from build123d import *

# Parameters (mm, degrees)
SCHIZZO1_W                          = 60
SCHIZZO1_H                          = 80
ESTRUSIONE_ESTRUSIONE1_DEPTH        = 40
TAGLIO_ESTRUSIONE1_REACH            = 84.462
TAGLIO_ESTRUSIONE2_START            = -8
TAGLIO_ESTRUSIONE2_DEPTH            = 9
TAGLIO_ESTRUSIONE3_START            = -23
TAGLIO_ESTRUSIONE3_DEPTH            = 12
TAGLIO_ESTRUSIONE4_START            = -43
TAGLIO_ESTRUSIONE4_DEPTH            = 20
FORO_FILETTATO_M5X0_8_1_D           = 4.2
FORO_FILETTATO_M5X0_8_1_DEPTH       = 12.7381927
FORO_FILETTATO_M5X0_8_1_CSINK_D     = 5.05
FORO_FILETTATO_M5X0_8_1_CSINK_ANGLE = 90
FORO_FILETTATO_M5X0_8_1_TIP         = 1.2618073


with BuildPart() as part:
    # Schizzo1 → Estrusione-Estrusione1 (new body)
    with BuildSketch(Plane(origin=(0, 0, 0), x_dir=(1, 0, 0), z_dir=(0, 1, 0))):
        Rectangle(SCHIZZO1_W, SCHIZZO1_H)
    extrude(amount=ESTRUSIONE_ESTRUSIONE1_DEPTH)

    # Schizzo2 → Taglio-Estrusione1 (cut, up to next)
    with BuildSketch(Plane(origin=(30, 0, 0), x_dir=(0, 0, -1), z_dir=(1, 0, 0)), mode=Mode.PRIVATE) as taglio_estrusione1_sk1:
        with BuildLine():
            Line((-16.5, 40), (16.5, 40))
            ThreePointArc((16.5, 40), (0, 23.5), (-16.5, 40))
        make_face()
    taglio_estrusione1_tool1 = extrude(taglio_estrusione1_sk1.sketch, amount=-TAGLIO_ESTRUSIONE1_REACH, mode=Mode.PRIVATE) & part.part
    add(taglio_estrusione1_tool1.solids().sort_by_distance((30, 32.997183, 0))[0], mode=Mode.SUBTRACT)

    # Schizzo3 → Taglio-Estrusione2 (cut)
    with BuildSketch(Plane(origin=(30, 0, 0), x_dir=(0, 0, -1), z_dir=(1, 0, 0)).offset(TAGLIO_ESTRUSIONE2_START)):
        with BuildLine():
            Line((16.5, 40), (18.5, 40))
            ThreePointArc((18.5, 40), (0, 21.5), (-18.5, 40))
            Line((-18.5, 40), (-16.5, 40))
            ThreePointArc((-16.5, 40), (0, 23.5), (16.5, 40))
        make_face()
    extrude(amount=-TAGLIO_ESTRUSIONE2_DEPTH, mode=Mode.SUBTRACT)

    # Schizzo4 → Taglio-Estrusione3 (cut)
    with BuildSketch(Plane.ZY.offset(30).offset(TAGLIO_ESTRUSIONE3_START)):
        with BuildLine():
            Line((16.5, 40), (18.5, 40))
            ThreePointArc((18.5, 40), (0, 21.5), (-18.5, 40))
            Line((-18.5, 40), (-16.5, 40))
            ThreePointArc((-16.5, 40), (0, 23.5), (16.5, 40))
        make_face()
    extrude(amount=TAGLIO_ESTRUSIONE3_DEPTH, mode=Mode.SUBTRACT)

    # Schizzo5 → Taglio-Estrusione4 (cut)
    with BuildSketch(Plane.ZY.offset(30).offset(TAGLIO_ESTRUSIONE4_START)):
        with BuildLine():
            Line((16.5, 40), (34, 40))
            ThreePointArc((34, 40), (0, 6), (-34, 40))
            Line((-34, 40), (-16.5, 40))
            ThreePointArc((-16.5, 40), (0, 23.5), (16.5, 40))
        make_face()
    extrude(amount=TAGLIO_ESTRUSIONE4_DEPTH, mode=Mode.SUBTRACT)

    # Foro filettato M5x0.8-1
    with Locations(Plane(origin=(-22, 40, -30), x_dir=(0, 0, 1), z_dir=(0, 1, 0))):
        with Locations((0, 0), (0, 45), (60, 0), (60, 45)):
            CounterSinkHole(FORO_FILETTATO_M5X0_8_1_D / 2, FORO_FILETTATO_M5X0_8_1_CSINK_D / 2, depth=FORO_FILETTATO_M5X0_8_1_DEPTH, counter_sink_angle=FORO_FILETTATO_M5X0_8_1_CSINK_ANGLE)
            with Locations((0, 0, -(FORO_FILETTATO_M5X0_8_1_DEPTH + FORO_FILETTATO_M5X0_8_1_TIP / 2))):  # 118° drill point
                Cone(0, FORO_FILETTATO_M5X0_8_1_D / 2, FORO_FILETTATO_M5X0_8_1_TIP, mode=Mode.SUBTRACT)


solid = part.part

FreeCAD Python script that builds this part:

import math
import FreeCAD as App
import Part
import Sketcher

doc = App.newDocument("Part")
body = doc.addObject("PartDesign::Body", "Body")

# Sketch on XZ plane
sketch1 = body.newObject("Sketcher::SketchObject", "Sketch")
sketch1.AttachmentSupport = (doc.getObject("XZ_Plane"), [""])
sketch1.MapMode = "FlatFace"
sketch1.addGeometry(Part.LineSegment(App.Vector(-30, -40, 0), App.Vector(-30, 40, 0)), False)
sketch1.addGeometry(Part.LineSegment(App.Vector(-30, 40, 0), App.Vector(30, 40, 0)), False)
sketch1.addGeometry(Part.LineSegment(App.Vector(30, 40, 0), App.Vector(30, -40, 0)), False)
sketch1.addGeometry(Part.LineSegment(App.Vector(30, -40, 0), App.Vector(-30, -40, 0)), False)
sketch1.addConstraint(Sketcher.Constraint("Coincident", 0, 2, 1, 1))
sketch1.addConstraint(Sketcher.Constraint("Coincident", 1, 2, 2, 1))
sketch1.addConstraint(Sketcher.Constraint("Coincident", 2, 2, 3, 1))
sketch1.addConstraint(Sketcher.Constraint("Coincident", 3, 2, 0, 1))
sketch1.addConstraint(Sketcher.Constraint("Vertical", 0))
sketch1.addConstraint(Sketcher.Constraint("Horizontal", 1))
sketch1.addConstraint(Sketcher.Constraint("Vertical", 2))
sketch1.addConstraint(Sketcher.Constraint("Horizontal", 3))
sketch1.addConstraint(Sketcher.Constraint("Symmetric", 0, 2, 2, 2, -1, 1))
sketch1.addConstraint(Sketcher.Constraint("DistanceX", 1, 1, 1, 2, 60.0))
sketch1.addConstraint(Sketcher.Constraint("DistanceY", 0, 1, 0, 2, 80.0))
pad1 = body.newObject("PartDesign::Pad", "Pad")
pad1.Profile = sketch1
pad1.Length = 40
pad1.Reversed = True

# Sketch on YZ plane
sketch2 = body.newObject("Sketcher::SketchObject", "Sketch001")
sketch2.AttachmentSupport = (doc.getObject("YZ_Plane"), [""])
sketch2.MapMode = "FlatFace"
sketch2.AttachmentOffset = App.Placement(App.Vector(0, 0, 30), App.Rotation())
sketch2.addGeometry(Part.LineSegment(App.Vector(40, -16, 0), App.Vector(40, 16, 0)), False)
sketch2.addGeometry(Part.ArcOfCircle(Part.Circle(App.Vector(40, 0, 0), App.Vector(0, 0, 1), 16), math.radians(90), math.radians(270)), False)
sketch2.addConstraint(Sketcher.Constraint("Coincident", 0, 1, 1, 2))
sketch2.addConstraint(Sketcher.Constraint("Coincident", 1, 1, 0, 2))
sketch2.addConstraint(Sketcher.Constraint("Vertical", 0))
sketch2.addConstraint(Sketcher.Constraint("PointOnObject", 1, 3, -1))
sketch2.addConstraint(Sketcher.Constraint("Vertical", 1, 3, 0, 1))
sketch2.addConstraint(Sketcher.Constraint("Radius", 1, 16.5))
sketch2.addConstraint(Sketcher.Constraint("DistanceX", -1, 1, 1, 3, 40.0))
pocket1 = body.newObject("PartDesign::Pocket", "Pocket")
pocket1.Profile = sketch2
pocket1.Type = "UpToFirst"

# Sketch on YZ plane
sketch3 = body.newObject("Sketcher::SketchObject", "Sketch002")
sketch3.AttachmentSupport = (doc.getObject("YZ_Plane"), [""])
sketch3.MapMode = "FlatFace"
sketch3.AttachmentOffset = App.Placement(App.Vector(0, 0, 22), App.Rotation())
sketch3.addGeometry(Part.LineSegment(App.Vector(40, -18.5, 0), App.Vector(40, -16.5, 0)), False)
sketch3.addGeometry(Part.ArcOfCircle(Part.Circle(App.Vector(40, 0, 0), App.Vector(0, 0, 1), 16.5), math.radians(90), math.radians(270)), False)
sketch3.addGeometry(Part.LineSegment(App.Vector(40, 16.5, 0), App.Vector(40, 18.5, 0)), False)
sketch3.addGeometry(Part.ArcOfCircle(Part.Circle(App.Vector(40, 0, 0), App.Vector(0, 0, 1), 18.5), math.radians(90), math.radians(270)), False)
sketch3.addConstraint(Sketcher.Constraint("Coincident", 0, 2, 1, 2))
sketch3.addConstraint(Sketcher.Constraint("Coincident", 1, 1, 2, 1))
sketch3.addConstraint(Sketcher.Constraint("Coincident", 2, 2, 3, 1))
sketch3.addConstraint(Sketcher.Constraint("Coincident", 3, 2, 0, 1))
sketch3.addConstraint(Sketcher.Constraint("Vertical", 0))
sketch3.addConstraint(Sketcher.Constraint("Vertical", 2))
sketch3.addConstraint(Sketcher.Constraint("Coincident", 3, 3, 1, 3))
sketch3.addConstraint(Sketcher.Constraint("Symmetric", 0, 2, 1, 1, -1))
sketch3.addConstraint(Sketcher.Constraint("Vertical", 3, 3, 0, 2))
sketch3.addConstraint(Sketcher.Constraint("Radius", 1, 16.5))
sketch3.addConstraint(Sketcher.Constraint("Radius", 3, 18.5))
sketch3.addConstraint(Sketcher.Constraint("DistanceX", -1, 1, 1, 3, 40.0))
pocket2 = body.newObject("PartDesign::Pocket", "Pocket001")
pocket2.Profile = sketch3
pocket2.Length = 9

# Sketch on YZ plane
sketch4 = body.newObject("Sketcher::SketchObject", "Sketch003")
sketch4.AttachmentSupport = (doc.getObject("YZ_Plane"), [""])
sketch4.MapMode = "FlatFace"
sketch4.AttachmentOffset = App.Placement(App.Vector(0, 0, -7), App.Rotation())
sketch4.addGeometry(Part.LineSegment(App.Vector(40, 18.5, 0), App.Vector(40, 16.5, 0)), False)
sketch4.addGeometry(Part.ArcOfCircle(Part.Circle(App.Vector(40, 0, 0), App.Vector(0, 0, 1), 16.5), math.radians(90), math.radians(270)), False)
sketch4.addGeometry(Part.LineSegment(App.Vector(40, -16.5, 0), App.Vector(40, -18.5, 0)), False)
sketch4.addGeometry(Part.ArcOfCircle(Part.Circle(App.Vector(40, 0, 0), App.Vector(0, 0, 1), 18.5), math.radians(90), math.radians(270)), False)
sketch4.addConstraint(Sketcher.Constraint("Coincident", 0, 2, 1, 1))
sketch4.addConstraint(Sketcher.Constraint("Coincident", 1, 2, 2, 1))
sketch4.addConstraint(Sketcher.Constraint("Coincident", 2, 2, 3, 2))
sketch4.addConstraint(Sketcher.Constraint("Coincident", 3, 1, 0, 1))
sketch4.addConstraint(Sketcher.Constraint("Vertical", 0))
sketch4.addConstraint(Sketcher.Constraint("Vertical", 2))
sketch4.addConstraint(Sketcher.Constraint("Coincident", 3, 3, 1, 3))
sketch4.addConstraint(Sketcher.Constraint("Symmetric", 0, 2, 1, 2, -1))
sketch4.addConstraint(Sketcher.Constraint("Vertical", 3, 3, 0, 2))
sketch4.addConstraint(Sketcher.Constraint("Radius", 1, 16.5))
sketch4.addConstraint(Sketcher.Constraint("Radius", 3, 18.5))
sketch4.addConstraint(Sketcher.Constraint("DistanceX", -1, 1, 1, 3, 40.0))
pocket3 = body.newObject("PartDesign::Pocket", "Pocket002")
pocket3.Profile = sketch4
pocket3.Length = 12

# Sketch on YZ plane
sketch5 = body.newObject("Sketcher::SketchObject", "Sketch004")
sketch5.AttachmentSupport = (doc.getObject("YZ_Plane"), [""])
sketch5.MapMode = "FlatFace"
sketch5.AttachmentOffset = App.Placement(App.Vector(0, 0, 13), App.Rotation())
sketch5.addGeometry(Part.LineSegment(App.Vector(40, 34, 0), App.Vector(40, 16, 0)), False)
sketch5.addGeometry(Part.ArcOfCircle(Part.Circle(App.Vector(40, 0, 0), App.Vector(0, 0, 1), 16), math.radians(90), math.radians(270)), False)
sketch5.addGeometry(Part.LineSegment(App.Vector(40, -16, 0), App.Vector(40, -34, 0)), False)
sketch5.addGeometry(Part.ArcOfCircle(Part.Circle(App.Vector(40, 0, 0), App.Vector(0, 0, 1), 34), math.radians(90), math.radians(270)), False)
sketch5.addConstraint(Sketcher.Constraint("Coincident", 0, 2, 1, 1))
sketch5.addConstraint(Sketcher.Constraint("Coincident", 1, 2, 2, 1))
sketch5.addConstraint(Sketcher.Constraint("Coincident", 2, 2, 3, 2))
sketch5.addConstraint(Sketcher.Constraint("Coincident", 3, 1, 0, 1))
sketch5.addConstraint(Sketcher.Constraint("Vertical", 0))
sketch5.addConstraint(Sketcher.Constraint("Vertical", 2))
sketch5.addConstraint(Sketcher.Constraint("Coincident", 3, 3, 1, 3))
sketch5.addConstraint(Sketcher.Constraint("Symmetric", 0, 2, 1, 2, -1))
sketch5.addConstraint(Sketcher.Constraint("Vertical", 3, 3, 0, 2))
sketch5.addConstraint(Sketcher.Constraint("Radius", 3, 34.0))
sketch5.addConstraint(Sketcher.Constraint("Radius", 1, 16.5))
sketch5.addConstraint(Sketcher.Constraint("DistanceX", -1, 1, 1, 3, 40.0))
pocket4 = body.newObject("PartDesign::Pocket", "Pocket003")
pocket4.Profile = sketch5
pocket4.Length = 20

# Sketch on XZ plane
sketch6 = body.newObject("Sketcher::SketchObject", "Sketch005")
sketch6.AttachmentSupport = (doc.getObject("XZ_Plane"), [""])
sketch6.MapMode = "FlatFace"
sketch6.AttachmentOffset = App.Placement(App.Vector(0, 0, -40), App.Rotation())
sketch6.addGeometry(Part.Circle(App.Vector(-22, -30, 0), App.Vector(0, 0, 1), 2.1), False)
sketch6.addGeometry(Part.Circle(App.Vector(23, -30, 0), App.Vector(0, 0, 1), 2.1), False)
sketch6.addGeometry(Part.Circle(App.Vector(-22, 30, 0), App.Vector(0, 0, 1), 2.1), False)
sketch6.addGeometry(Part.Circle(App.Vector(23, 30, 0), App.Vector(0, 0, 1), 2.1), False)
sketch6.addConstraint(Sketcher.Constraint("Equal", 0, 1))
sketch6.addConstraint(Sketcher.Constraint("Equal", 1, 2))
sketch6.addConstraint(Sketcher.Constraint("Equal", 2, 3))
sketch6.addConstraint(Sketcher.Constraint("Symmetric", 0, 3, 2, 3, -1))
sketch6.addConstraint(Sketcher.Constraint("Symmetric", 1, 3, 3, 3, -1))
sketch6.addConstraint(Sketcher.Constraint("Horizontal", 0, 3, 1, 3))
sketch6.addConstraint(Sketcher.Constraint("Diameter", 0, 4.2))
sketch6.addConstraint(Sketcher.Constraint("DistanceX", 0, 3, -1, 1, 22.0))
sketch6.addConstraint(Sketcher.Constraint("DistanceY", 0, 3, -1, 1, 30.0))
sketch6.addConstraint(Sketcher.Constraint("DistanceX", -1, 1, 1, 3, 23.0))
doc.recompute()
hole = body.newObject("PartDesign::Hole", "Hole")
hole.Profile = sketch6
hole.ThreadType = "None"
hole.Diameter = 4.2
hole.DepthType = "Dimension"
hole.Depth = 12.738193
hole.DrillPoint = "Angled"
hole.DrillPointAngle = 118
hole.HoleCutType = "Countersink"
hole.HoleCutDiameter = 5.05
hole.HoleCutCountersinkAngle = 90
hole.Reversed = True

doc.recompute()
